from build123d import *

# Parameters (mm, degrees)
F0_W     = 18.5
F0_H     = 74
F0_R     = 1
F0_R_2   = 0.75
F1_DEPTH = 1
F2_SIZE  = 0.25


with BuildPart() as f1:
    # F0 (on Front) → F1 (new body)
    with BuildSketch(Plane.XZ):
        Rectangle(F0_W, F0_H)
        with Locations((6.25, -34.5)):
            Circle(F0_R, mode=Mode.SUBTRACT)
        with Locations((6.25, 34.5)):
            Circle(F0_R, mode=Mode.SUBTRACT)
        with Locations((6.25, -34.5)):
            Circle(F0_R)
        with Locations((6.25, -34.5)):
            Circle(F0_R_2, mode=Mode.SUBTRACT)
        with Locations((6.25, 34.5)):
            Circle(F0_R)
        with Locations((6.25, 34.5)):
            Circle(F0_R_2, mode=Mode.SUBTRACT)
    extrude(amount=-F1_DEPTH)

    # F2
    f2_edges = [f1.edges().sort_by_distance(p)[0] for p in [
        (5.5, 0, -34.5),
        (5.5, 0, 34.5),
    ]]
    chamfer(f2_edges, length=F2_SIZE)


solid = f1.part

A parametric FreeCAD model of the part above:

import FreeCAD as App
import Part
import Sketcher

V = App.Vector
Q = App.Units.Quantity


def edges_at(feature, points):
    """Names of the edges that pass closest to the given points."""
    edges = feature.Shape.Edges
    near = lambda p: min(range(len(edges)), key=lambda i: edges[i].distToShape(Part.Vertex(*p))[0])
    return sorted({f"Edge{near(p) + 1}" for p in points})


def add_polygon(sketch, points):
    """Adds a closed chain of lines whose ends are joined by coincident constraints."""
    first, n = sketch.GeometryCount, len(points)
    for a, b in zip(points, points[1:] + points[:1]):
        sketch.addGeometry(Part.LineSegment(App.Vector(*a, 0), App.Vector(*b, 0)), False)
    for i in range(n):
        sketch.addConstraint(Sketcher.Constraint("Coincident", first + i, 2, first + (i + 1) % n, 1))

doc = App.newDocument("Part")
body = doc.addObject("PartDesign::Body", "Body")

sketch1 = body.newObject("Sketcher::SketchObject", "Sketch")
sketch1.AttachmentSupport = (doc.getObject("XZ_Plane"), [""])
sketch1.MapMode = "FlatFace"
add_polygon(sketch1, [(-9.25, 37), (-9.25, -37), (9.25, -37), (9.25, 37)])
sketch1.addGeometry(Part.Circle(V(6.25, -34.5, 0), V(0, 0, 1), 0.75), False)
sketch1.addGeometry(Part.Circle(V(6.25, 34.5, 0), V(0, 0, 1), 0.75), False)
sketch1.addConstraint(Sketcher.Constraint("Vertical", 0))
sketch1.addConstraint(Sketcher.Constraint("Horizontal", 1))
sketch1.addConstraint(Sketcher.Constraint("Vertical", 2))
sketch1.addConstraint(Sketcher.Constraint("Horizontal", 3))
sketch1.addConstraint(Sketcher.Constraint("Equal", 4, 5))
sketch1.addConstraint(Sketcher.Constraint("Symmetric", 0, 2, 2, 2, -1, 1))
sketch1.addConstraint(Sketcher.Constraint("Symmetric", 4, 3, 5, 3, -1))
sketch1.addConstraint(Sketcher.Constraint("Diameter", 4, Q("1.5 mm")))
sketch1.addConstraint(Sketcher.Constraint("DistanceY", 0, 2, 0, 1, Q("74 mm")))
sketch1.addConstraint(Sketcher.Constraint("DistanceX", 1, 1, 1, 2, Q("18.5 mm")))
sketch1.addConstraint(Sketcher.Constraint("DistanceY", 4, 3, 5, 3, Q("69 mm")))
sketch1.addConstraint(Sketcher.Constraint("DistanceX", 4, 3, 1, 2, Q("3 mm")))
pad1 = body.newObject("PartDesign::Pad", "Pad")
pad1.Profile = sketch1
pad1.Length = 1
pad1.Reversed = True
doc.recompute()

chamfer = body.newObject("PartDesign::Chamfer", "Chamfer")
chamfer.Base = (pad1, edges_at(pad1, [(5.5, 0, -34.5), (5.5, 0, 34.5)]))
chamfer.Size = 0.25

doc.recompute()
